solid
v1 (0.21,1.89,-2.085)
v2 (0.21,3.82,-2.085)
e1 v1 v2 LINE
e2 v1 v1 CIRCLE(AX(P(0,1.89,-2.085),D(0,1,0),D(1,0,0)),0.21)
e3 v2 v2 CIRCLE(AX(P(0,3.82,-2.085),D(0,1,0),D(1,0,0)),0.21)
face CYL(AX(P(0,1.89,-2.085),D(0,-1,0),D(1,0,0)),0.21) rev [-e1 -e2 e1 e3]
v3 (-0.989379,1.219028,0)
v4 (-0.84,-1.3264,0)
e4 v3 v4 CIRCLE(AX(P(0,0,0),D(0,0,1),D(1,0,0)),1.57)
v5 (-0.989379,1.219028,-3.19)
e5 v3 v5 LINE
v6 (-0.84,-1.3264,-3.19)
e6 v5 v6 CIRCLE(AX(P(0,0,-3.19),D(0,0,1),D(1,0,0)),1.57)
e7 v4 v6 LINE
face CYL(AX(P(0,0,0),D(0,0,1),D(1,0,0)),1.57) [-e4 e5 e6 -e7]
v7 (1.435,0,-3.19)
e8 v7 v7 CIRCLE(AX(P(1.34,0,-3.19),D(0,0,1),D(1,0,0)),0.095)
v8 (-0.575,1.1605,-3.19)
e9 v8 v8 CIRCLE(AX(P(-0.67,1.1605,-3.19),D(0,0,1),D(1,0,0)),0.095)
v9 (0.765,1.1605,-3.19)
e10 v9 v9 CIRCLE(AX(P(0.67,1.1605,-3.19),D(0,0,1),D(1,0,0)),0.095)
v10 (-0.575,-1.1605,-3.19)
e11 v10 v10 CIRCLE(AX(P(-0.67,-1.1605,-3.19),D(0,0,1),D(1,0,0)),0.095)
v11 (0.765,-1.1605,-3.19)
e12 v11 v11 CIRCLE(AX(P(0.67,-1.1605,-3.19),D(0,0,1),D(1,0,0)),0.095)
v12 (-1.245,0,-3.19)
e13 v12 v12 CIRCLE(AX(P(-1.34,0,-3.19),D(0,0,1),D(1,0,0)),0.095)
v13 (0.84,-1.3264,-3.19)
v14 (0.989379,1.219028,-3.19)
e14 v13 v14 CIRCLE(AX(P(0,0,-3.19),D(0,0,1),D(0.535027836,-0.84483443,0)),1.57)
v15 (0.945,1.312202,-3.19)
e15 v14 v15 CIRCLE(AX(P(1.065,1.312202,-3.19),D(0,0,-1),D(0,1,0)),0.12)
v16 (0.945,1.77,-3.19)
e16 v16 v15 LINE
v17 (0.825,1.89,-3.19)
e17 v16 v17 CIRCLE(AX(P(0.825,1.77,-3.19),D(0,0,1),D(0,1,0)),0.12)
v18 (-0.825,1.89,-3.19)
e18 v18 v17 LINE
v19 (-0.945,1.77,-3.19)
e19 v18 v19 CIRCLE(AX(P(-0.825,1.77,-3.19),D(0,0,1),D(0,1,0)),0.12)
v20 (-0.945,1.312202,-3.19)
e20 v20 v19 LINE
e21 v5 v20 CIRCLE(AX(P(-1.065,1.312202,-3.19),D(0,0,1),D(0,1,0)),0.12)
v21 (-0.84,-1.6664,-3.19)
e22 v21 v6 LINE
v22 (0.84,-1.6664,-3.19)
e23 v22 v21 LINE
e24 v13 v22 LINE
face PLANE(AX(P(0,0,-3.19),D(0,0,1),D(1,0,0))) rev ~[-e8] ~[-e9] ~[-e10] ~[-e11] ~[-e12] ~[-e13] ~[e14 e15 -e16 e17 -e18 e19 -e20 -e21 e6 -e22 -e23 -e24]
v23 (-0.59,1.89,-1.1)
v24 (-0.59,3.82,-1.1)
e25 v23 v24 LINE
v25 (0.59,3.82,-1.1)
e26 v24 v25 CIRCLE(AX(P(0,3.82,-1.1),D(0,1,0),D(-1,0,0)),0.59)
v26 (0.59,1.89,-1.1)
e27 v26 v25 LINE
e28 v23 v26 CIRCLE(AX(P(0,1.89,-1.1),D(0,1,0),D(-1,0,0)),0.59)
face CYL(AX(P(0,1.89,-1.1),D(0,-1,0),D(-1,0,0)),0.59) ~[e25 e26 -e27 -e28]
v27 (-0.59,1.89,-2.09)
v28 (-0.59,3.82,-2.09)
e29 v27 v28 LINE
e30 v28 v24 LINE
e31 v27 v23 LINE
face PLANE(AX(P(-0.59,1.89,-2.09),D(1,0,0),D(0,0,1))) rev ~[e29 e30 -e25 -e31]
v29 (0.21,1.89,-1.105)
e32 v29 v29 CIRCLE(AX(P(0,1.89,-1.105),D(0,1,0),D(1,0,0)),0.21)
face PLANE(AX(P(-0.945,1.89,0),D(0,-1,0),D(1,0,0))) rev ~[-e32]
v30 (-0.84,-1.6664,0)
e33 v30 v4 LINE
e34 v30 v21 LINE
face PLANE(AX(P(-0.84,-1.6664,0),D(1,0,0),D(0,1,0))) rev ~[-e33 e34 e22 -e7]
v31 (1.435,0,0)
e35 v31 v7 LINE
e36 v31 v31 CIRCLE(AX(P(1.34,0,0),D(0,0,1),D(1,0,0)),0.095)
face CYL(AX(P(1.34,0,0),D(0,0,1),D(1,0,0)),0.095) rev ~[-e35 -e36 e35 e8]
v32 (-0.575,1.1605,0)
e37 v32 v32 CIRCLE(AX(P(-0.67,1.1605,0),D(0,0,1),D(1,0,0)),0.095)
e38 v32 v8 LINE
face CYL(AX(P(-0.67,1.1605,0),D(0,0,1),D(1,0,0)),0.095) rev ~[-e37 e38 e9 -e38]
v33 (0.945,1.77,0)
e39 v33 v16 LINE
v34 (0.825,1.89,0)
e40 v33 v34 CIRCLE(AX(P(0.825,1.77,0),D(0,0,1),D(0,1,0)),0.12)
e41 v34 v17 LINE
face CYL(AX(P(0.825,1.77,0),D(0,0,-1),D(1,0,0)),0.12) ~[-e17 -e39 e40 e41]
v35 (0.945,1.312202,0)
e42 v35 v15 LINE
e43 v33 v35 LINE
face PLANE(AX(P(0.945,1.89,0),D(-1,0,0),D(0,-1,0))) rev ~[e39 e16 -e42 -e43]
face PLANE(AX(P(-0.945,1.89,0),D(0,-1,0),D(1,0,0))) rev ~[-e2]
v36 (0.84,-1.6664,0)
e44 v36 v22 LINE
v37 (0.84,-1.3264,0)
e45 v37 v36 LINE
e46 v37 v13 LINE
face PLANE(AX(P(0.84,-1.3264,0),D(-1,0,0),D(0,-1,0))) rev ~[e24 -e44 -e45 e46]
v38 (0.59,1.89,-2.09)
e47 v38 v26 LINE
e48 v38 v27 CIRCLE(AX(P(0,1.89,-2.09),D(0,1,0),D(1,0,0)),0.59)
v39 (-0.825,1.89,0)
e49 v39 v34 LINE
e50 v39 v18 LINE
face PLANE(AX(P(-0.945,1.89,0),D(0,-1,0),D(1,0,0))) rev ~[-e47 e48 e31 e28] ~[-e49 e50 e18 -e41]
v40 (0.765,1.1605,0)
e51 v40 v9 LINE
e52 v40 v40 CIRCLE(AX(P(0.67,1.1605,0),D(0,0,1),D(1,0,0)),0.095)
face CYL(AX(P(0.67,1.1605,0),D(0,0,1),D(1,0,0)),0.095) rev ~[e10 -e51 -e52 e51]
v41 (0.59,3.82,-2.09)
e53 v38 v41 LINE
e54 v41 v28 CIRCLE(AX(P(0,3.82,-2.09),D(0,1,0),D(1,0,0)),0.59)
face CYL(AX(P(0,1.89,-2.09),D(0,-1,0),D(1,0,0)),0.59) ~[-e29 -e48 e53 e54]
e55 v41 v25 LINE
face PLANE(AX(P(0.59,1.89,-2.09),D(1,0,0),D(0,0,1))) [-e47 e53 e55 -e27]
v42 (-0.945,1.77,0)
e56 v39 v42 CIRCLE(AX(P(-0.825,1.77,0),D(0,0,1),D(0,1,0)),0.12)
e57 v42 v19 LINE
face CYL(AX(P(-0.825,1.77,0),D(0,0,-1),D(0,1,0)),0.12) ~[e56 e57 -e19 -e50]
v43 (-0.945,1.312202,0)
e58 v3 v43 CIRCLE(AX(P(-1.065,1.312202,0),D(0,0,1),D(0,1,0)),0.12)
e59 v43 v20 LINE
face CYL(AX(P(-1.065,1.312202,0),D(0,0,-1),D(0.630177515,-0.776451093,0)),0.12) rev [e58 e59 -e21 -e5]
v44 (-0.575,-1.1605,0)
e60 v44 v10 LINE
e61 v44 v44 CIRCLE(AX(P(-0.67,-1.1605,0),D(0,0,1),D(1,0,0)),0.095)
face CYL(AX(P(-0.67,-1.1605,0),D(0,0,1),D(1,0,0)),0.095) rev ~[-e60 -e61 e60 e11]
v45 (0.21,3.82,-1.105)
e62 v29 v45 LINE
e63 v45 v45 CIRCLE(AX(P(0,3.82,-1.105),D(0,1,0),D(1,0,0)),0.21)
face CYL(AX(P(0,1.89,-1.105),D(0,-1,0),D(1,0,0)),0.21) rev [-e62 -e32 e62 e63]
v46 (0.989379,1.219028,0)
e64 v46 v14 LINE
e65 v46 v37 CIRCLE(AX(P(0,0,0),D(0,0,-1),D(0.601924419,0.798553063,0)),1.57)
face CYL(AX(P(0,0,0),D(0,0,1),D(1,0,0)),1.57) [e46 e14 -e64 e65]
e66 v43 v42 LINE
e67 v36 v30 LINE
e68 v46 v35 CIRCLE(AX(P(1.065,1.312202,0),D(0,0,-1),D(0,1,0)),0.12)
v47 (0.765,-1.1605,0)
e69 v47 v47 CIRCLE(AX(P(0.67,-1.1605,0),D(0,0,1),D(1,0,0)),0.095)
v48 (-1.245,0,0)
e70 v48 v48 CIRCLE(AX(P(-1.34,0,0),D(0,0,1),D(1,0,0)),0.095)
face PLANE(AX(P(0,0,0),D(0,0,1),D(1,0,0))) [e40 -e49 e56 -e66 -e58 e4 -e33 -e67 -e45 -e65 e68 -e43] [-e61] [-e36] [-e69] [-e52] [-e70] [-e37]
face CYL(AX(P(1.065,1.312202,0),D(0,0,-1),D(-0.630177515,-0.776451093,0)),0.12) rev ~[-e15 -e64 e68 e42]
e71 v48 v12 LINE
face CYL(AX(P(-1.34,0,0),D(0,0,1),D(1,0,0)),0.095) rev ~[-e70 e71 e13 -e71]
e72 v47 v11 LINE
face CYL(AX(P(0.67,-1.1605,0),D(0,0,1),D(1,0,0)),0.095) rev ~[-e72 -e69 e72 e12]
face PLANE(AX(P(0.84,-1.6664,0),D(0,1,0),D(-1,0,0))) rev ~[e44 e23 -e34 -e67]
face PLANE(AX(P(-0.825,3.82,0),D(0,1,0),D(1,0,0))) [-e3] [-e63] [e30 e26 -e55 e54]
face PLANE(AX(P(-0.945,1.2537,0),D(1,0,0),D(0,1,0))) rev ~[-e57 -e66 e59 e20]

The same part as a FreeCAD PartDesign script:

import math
import FreeCAD as App
import Part
import Sketcher
Q = App.Units.Quantity


def edges_at(feature, points):
    """Names of the edges that pass closest to the given points."""
    edges = feature.Shape.Edges
    near = lambda p: min(range(len(edges)), key=lambda i: edges[i].distToShape(Part.Vertex(*p))[0])
    return sorted({f"Edge{near(p) + 1}" for p in points})

doc = App.newDocument("Part")
params = doc.addObject("Spreadsheet::Sheet", "Params")
for row, (alias, value) in enumerate([
    ("sketch1_diameter", "0.19 mm"),
    ("sketch1_radius", "1.57 mm"),
    ("sketch1_width", "1.89 mm"),
    ("sketch1_height", "0.34 mm"),
    ("pad1_length", "3.19 mm"),
    ("fillet_radius", "0.12 mm"),
    ("sketch2_diameter", "0.42 mm"),
    ("sketch2_radius", "0.59 mm"),
    ("sketch2_height", "0.99 mm"),
    ("pad2_length", "1.93 mm"),
], start=1):
    params.set(f"A{row}", alias)
    params.set(f"B{row}", "=" + value)
    params.setAlias(f"B{row}", alias)

body = doc.addObject("PartDesign::Body", "Body")

sketch1 = body.newObject("Sketcher::SketchObject", "Sketch")
sketch1.AttachmentSupport = (doc.getObject("XY_Plane"), [""])
sketch1.MapMode = "FlatFace"
sketch1.addGeometry([
    Part.ArcOfCircle(Part.Circle(App.Vector(0, 0, 0), App.Vector(0, 0, 1), 1.57), math.radians(-58), math.radians(53)),
    Part.LineSegment(App.Vector(0.94, 1.25, 0), App.Vector(0.94, 1.89, 0)),
    Part.LineSegment(App.Vector(0.94, 1.89, 0), App.Vector(-0.94, 1.89, 0)),
    Part.LineSegment(App.Vector(-0.94, 1.89, 0), App.Vector(-0.94, 1.25, 0)),
    Part.ArcOfCircle(Part.Circle(App.Vector(0, 0, 0), App.Vector(0, 0, 1), 1.57), math.radians(127), math.radians(238)),
    Part.LineSegment(App.Vector(-0.84, -1.33, 0), App.Vector(-0.84, -1.67, 0)),
    Part.LineSegment(App.Vector(-0.84, -1.67, 0), App.Vector(0.84, -1.67, 0)),
    Part.LineSegment(App.Vector(0.84, -1.67, 0), App.Vector(0.84, -1.33, 0)),
    Part.Circle(App.Vector(-0.67, -1.16, 0), App.Vector(0, 0, 1), 0.1),
    Part.Circle(App.Vector(-1.34, 0, 0), App.Vector(0, 0, 1), 0.1),
    Part.Circle(App.Vector(0.67, -1.16, 0), App.Vector(0, 0, 1), 0.1),
    Part.Circle(App.Vector(1.34, 0, 0), App.Vector(0, 0, 1), 0.1),
    Part.Circle(App.Vector(-0.67, 1.16, 0), App.Vector(0, 0, 1), 0.1),
    Part.Circle(App.Vector(0.67, 1.16, 0), App.Vector(0, 0, 1), 0.1),
], False)
sketch1.addConstraint([
    Sketcher.Constraint("Coincident", 0, 2, 1, 1),
    Sketcher.Constraint("Coincident", 1, 2, 2, 1),
    Sketcher.Constraint("Coincident", 2, 2, 3, 1),
    Sketcher.Constraint("Coincident", 3, 2, 4, 1),
    Sketcher.Constraint("Coincident", 4, 2, 5, 1),
    Sketcher.Constraint("Coincident", 5, 2, 6, 1),
    Sketcher.Constraint("Coincident", 6, 2, 7, 1),
    Sketcher.Constraint("Coincident", 7, 2, 0, 1),
    Sketcher.Constraint("Vertical", 1),
    Sketcher.Constraint("Horizontal", 2),
    Sketcher.Constraint("Vertical", 3),
    Sketcher.Constraint("Vertical", 5),
    Sketcher.Constraint("Horizontal", 6),
    Sketcher.Constraint("Vertical", 7),
    Sketcher.Constraint("Coincident", 0, 3, -1, 1),
    Sketcher.Constraint("Coincident", 4, 3, -1, 1),
    Sketcher.Constraint("Equal", 0, 4),
    Sketcher.Constraint("Equal", 8, 9),
    Sketcher.Constraint("Equal", 9, 10),
    Sketcher.Constraint("Equal", 10, 11),
    Sketcher.Constraint("Equal", 11, 12),
    Sketcher.Constraint("Equal", 12, 13),
    Sketcher.Constraint("Symmetric", 9, 3, 11, 3, -1, 1),
    Sketcher.Constraint("Symmetric", 10, 3, 12, 3, -1, 1),
    Sketcher.Constraint("Symmetric", 8, 3, 13, 3, -1, 1),
    Sketcher.Constraint("Symmetric", 8, 3, 10, 3, -2),
    Sketcher.Constraint("PointOnObject", 9, 3, -1),
    Sketcher.Constraint("Horizontal", 0, 2, 3, 2),
    Sketcher.Constraint("Horizontal", 4, 2, 7, 2),
    Sketcher.Constraint("Diameter", 8, Q("0.19 mm")),
    Sketcher.Constraint("Radius", 0, Q("1.57 mm")),
    Sketcher.Constraint("DistanceX", 2, 2, 2, 1, Q("1.89 mm")),
    Sketcher.Constraint("DistanceY", 5, 2, 5, 1, Q("0.34 mm")),
    Sketcher.Constraint("DistanceX", 9, 3, -1, 1, Q("1.34 mm")),
    Sketcher.Constraint("DistanceY", -1, 1, 1, 2, Q("1.89 mm")),
    Sketcher.Constraint("DistanceX", 4, 2, -1, 1, Q("0.84 mm")),
    Sketcher.Constraint("DistanceX", 8, 3, 10, 3, Q("1.34 mm")),
    Sketcher.Constraint("DistanceY", 8, 3, 12, 3, Q("2.321 mm")),
])
sketch1.setExpression("Constraints[29]", "Params.sketch1_diameter")
sketch1.setExpression("Constraints[30]", "Params.sketch1_radius")
sketch1.setExpression("Constraints[31]", "Params.sketch1_width")
sketch1.setExpression("Constraints[32]", "Params.sketch1_height")
pad1 = body.newObject("PartDesign::Pad", "Pad")
pad1.Profile = sketch1
pad1.setExpression("Length", "Params.pad1_length")
pad1.Reversed = True
doc.recompute()

fillet = body.newObject("PartDesign::Fillet", "Fillet")
fillet.Base = (pad1, edges_at(pad1, [
    (0.945, 1.254, -1.595),
    (0.945, 1.89, -1.595),
    (-0.945, 1.254, -1.595),
    (-0.945, 1.89, -1.595),
]))
fillet.setExpression("Radius", "Params.fillet_radius")

sketch2 = body.newObject("Sketcher::SketchObject", "Sketch001")
sketch2.AttachmentSupport = (doc.getObject("XZ_Plane"), [""])
sketch2.MapMode = "FlatFace"
sketch2.AttachmentOffset = App.Placement(App.Vector(0, 0, -1.89), App.Rotation())
sketch2.addGeometry([
    Part.ArcOfCircle(Part.Circle(App.Vector(0, -2.09, 0), App.Vector(0, 0, 1), 0.59), math.radians(180), math.radians(360)),
    Part.LineSegment(App.Vector(-0.59, -2.09, 0), App.Vector(-0.59, -1.1, 0)),
    Part.ArcOfCircle(Part.Circle(App.Vector(0, -1.1, 0), App.Vector(0, 0, 1), 0.59), math.radians(0), math.radians(180)),
    Part.LineSegment(App.Vector(0.59, -1.1, 0), App.Vector(0.59, -2.09, 0)),
    Part.Circle(App.Vector(0, -1.1, 0), App.Vector(0, 0, 1), 0.21),
    Part.Circle(App.Vector(0, -2.08, 0), App.Vector(0, 0, 1), 0.21),
], False)
sketch2.addConstraint([
    Sketcher.Constraint("Tangent", 0, 1, 1, 1),
    Sketcher.Constraint("Tangent", 1, 2, 2, 2),
    Sketcher.Constraint("Tangent", 2, 1, 3, 1),
    Sketcher.Constraint("Tangent", 3, 2, 0, 2),
    Sketcher.Constraint("Vertical", 1),
    Sketcher.Constraint("Vertical", 3),
    Sketcher.Constraint("Equal", 4, 5),
    Sketcher.Constraint("PointOnObject", 0, 3, -2),
    Sketcher.Constraint("PointOnObject", 4, 3, -2),
    Sketcher.Constraint("PointOnObject", 5, 3, -2),
    Sketcher.Constraint("Diameter", 4, Q("0.42 mm")),
    Sketcher.Constraint("Radius", 0, Q("0.59 mm")),
    Sketcher.Constraint("DistanceY", 5, 3, 4, 3, Q("0.98 mm")),
    Sketcher.Constraint("DistanceY", 1, 1, 1, 2, Q("0.99 mm")),
    Sketcher.Constraint("DistanceY", 2, 3, -1, 1, Q("1.1 mm")),
    Sketcher.Constraint("DistanceY", 4, 3, -1, 1, Q("1.105 mm")),
])
sketch2.setExpression("Constraints[10]", "Params.sketch2_diameter")
sketch2.setExpression("Constraints[11]", "Params.sketch2_radius")
sketch2.setExpression("Constraints[13]", "Params.sketch2_height")
pad2 = body.newObject("PartDesign::Pad", "Pad001")
pad2.Profile = sketch2
pad2.setExpression("Length", "Params.pad2_length")
pad2.Reversed = True

doc.recompute()
